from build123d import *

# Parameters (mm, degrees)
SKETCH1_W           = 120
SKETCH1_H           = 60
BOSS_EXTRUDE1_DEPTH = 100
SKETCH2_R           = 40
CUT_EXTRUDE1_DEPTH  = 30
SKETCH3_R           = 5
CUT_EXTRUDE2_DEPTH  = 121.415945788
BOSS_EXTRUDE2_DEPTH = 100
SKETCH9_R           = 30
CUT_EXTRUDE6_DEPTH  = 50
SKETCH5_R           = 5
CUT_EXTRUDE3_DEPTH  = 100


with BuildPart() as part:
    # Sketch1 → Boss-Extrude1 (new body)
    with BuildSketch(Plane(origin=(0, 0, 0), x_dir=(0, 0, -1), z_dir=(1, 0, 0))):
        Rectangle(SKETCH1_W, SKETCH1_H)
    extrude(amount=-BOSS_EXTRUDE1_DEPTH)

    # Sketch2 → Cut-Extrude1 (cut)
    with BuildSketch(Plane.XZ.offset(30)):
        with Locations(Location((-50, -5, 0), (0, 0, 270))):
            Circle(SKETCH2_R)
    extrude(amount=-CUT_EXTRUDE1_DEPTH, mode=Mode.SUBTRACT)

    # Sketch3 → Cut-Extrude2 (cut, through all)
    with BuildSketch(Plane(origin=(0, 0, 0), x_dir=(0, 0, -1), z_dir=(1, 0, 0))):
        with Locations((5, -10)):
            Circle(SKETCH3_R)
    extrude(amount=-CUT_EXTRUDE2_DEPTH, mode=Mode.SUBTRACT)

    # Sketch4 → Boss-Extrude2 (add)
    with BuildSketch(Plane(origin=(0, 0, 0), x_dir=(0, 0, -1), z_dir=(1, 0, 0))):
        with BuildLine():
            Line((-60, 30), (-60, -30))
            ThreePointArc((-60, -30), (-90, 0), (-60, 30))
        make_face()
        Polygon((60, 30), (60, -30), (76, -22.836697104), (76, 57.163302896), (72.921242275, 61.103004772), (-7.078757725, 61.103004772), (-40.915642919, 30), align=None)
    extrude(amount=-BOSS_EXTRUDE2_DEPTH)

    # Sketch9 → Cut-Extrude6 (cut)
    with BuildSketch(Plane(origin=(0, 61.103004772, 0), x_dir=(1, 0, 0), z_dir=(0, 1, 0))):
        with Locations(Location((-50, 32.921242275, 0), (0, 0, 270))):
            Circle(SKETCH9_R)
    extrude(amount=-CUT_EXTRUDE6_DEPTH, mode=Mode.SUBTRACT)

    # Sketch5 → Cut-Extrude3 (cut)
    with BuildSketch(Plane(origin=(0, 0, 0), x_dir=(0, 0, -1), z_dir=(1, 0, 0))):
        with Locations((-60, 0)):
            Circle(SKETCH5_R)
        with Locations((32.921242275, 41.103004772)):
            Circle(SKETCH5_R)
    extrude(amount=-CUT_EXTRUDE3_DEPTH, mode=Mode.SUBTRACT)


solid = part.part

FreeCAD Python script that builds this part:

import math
import FreeCAD as App
import Part
import Sketcher

doc = App.newDocument("Part")
body = doc.addObject("PartDesign::Body", "Body")

sketch1 = body.newObject("Sketcher::SketchObject", "Sketch")
sketch1.AttachmentSupport = (doc.getObject("YZ_Plane"), [""])
sketch1.MapMode = "FlatFace"
sketch1.addGeometry(Part.LineSegment(App.Vector(30, 60, 0), App.Vector(-30, 60, 0)), False)
sketch1.addGeometry(Part.LineSegment(App.Vector(-30, 60, 0), App.Vector(-30, -60, 0)), False)
sketch1.addGeometry(Part.LineSegment(App.Vector(-30, -60, 0), App.Vector(30, -60, 0)), False)
sketch1.addGeometry(Part.LineSegment(App.Vector(30, -60, 0), App.Vector(30, 60, 0)), False)
sketch1.addConstraint(Sketcher.Constraint("Coincident", 0, 2, 1, 1))
sketch1.addConstraint(Sketcher.Constraint("Coincident", 1, 2, 2, 1))
sketch1.addConstraint(Sketcher.Constraint("Coincident", 2, 2, 3, 1))
sketch1.addConstraint(Sketcher.Constraint("Coincident", 3, 2, 0, 1))
sketch1.addConstraint(Sketcher.Constraint("Horizontal", 0))
sketch1.addConstraint(Sketcher.Constraint("Vertical", 1))
sketch1.addConstraint(Sketcher.Constraint("Horizontal", 2))
sketch1.addConstraint(Sketcher.Constraint("Vertical", 3))
sketch1.addConstraint(Sketcher.Constraint("Symmetric", 0, 2, 2, 2, -1, 1))
sketch1.addConstraint(Sketcher.Constraint("DistanceX", 0, 2, 0, 1, 60.0))
sketch1.addConstraint(Sketcher.Constraint("DistanceY", 1, 2, 1, 1, 120.0))
pad1 = body.newObject("PartDesign::Pad", "Pad")
pad1.Profile = sketch1
pad1.Length = 100
pad1.Reversed = True

sketch2 = body.newObject("Sketcher::SketchObject", "Sketch001")
sketch2.AttachmentSupport = (doc.getObject("XZ_Plane"), [""])
sketch2.MapMode = "FlatFace"
sketch2.AttachmentOffset = App.Placement(App.Vector(0, 0, 30), App.Rotation())
sketch2.addGeometry(Part.Circle(App.Vector(-50, -5, 0), App.Vector(0, 0, 1), 40), False)
sketch2.addConstraint(Sketcher.Constraint("Diameter", 0, 80.0))
sketch2.addConstraint(Sketcher.Constraint("DistanceX", 0, 3, -1, 1, 50.0))
sketch2.addConstraint(Sketcher.Constraint("DistanceY", 0, 3, -1, 1, 5.0))
pocket1 = body.newObject("PartDesign::Pocket", "Pocket")
pocket1.Profile = sketch2
pocket1.Length = 30

sketch3 = body.newObject("Sketcher::SketchObject", "Sketch002")
sketch3.AttachmentSupport = (doc.getObject("YZ_Plane"), [""])
sketch3.MapMode = "FlatFace"
sketch3.addGeometry(Part.Circle(App.Vector(-10, -5, 0), App.Vector(0, 0, 1), 5), False)
sketch3.addConstraint(Sketcher.Constraint("Diameter", 0, 10.0))
sketch3.addConstraint(Sketcher.Constraint("DistanceX", 0, 3, -1, 1, 10.0))
sketch3.addConstraint(Sketcher.Constraint("DistanceY", 0, 3, -1, 1, 5.0))
pocket2 = body.newObject("PartDesign::Pocket", "Pocket001")
pocket2.Profile = sketch3
pocket2.Type = "ThroughAll"

sketch4 = body.newObject("Sketcher::SketchObject", "Sketch003")
sketch4.AttachmentSupport = (doc.getObject("YZ_Plane"), [""])
sketch4.MapMode = "FlatFace"
sketch4.addGeometry(Part.LineSegment(App.Vector(-30, 60, 0), App.Vector(30, 60, 0)), False)
sketch4.addGeometry(Part.ArcOfCircle(Part.Circle(App.Vector(0, 60, 0), App.Vector(0, 0, 1), 30), math.radians(0), math.radians(180)), False)
sketch4.addGeometry(Part.LineSegment(App.Vector(30, -60, 0), App.Vector(-30, -60, 0)), False)
sketch4.addGeometry(Part.LineSegment(App.Vector(-30, -60, 0), App.Vector(-23, -76, 0)), False)
sketch4.addGeometry(Part.LineSegment(App.Vector(-23, -76, 0), App.Vector(57, -76, 0)), False)
sketch4.addGeometry(Part.LineSegment(App.Vector(57, -76, 0), App.Vector(61, -73, 0)), False)
sketch4.addGeometry(Part.LineSegment(App.Vector(61, -73, 0), App.Vector(61, 7, 0)), False)
sketch4.addGeometry(Part.LineSegment(App.Vector(61, 7, 0), App.Vector(30, 41, 0)), False)
sketch4.addGeometry(Part.LineSegment(App.Vector(30, 41, 0), App.Vector(30, -60, 0)), False)
sketch4.addConstraint(Sketcher.Constraint("Coincident", 0, 1, 1, 2))
sketch4.addConstraint(Sketcher.Constraint("Coincident", 1, 1, 0, 2))
sketch4.addConstraint(Sketcher.Constraint("Coincident", 2, 2, 3, 1))
sketch4.addConstraint(Sketcher.Constraint("Coincident", 3, 2, 4, 1))
sketch4.addConstraint(Sketcher.Constraint("Coincident", 4, 2, 5, 1))
sketch4.addConstraint(Sketcher.Constraint("Coincident", 5, 2, 6, 1))
sketch4.addConstraint(Sketcher.Constraint("Coincident", 6, 2, 7, 1))
sketch4.addConstraint(Sketcher.Constraint("Coincident", 7, 2, 8, 1))
sketch4.addConstraint(Sketcher.Constraint("Coincident", 8, 2, 2, 1))
sketch4.addConstraint(Sketcher.Constraint("Horizontal", 0))
sketch4.addConstraint(Sketcher.Constraint("Horizontal", 2))
sketch4.addConstraint(Sketcher.Constraint("Horizontal", 4))
sketch4.addConstraint(Sketcher.Constraint("Vertical", 6))
sketch4.addConstraint(Sketcher.Constraint("Vertical", 8))
sketch4.addConstraint(Sketcher.Constraint("Symmetric", 1, 1, 2, 2, -1, 1))
sketch4.addConstraint(Sketcher.Constraint("PointOnObject", 1, 3, -2))
sketch4.addConstraint(Sketcher.Constraint("Horizontal", 1, 3, 0, 1))
sketch4.addConstraint(Sketcher.Constraint("Vertical", 1, 1, 7, 2))
sketch4.addConstraint(Sketcher.Constraint("Equal", 4, 6))
sketch4.addConstraint(Sketcher.Constraint("Radius", 1, 30.0))
sketch4.addConstraint(Sketcher.Constraint("DistanceX", 4, 1, 4, 2, 80.0))
sketch4.addConstraint(Sketcher.Constraint("Distance", 5, 5.0))
sketch4.addConstraint(Sketcher.Constraint("DistanceY", -1, 1, 1, 3, 60.0))
sketch4.addConstraint(Sketcher.Constraint("DistanceY", 3, 2, -1, 1, 76.0))
sketch4.addConstraint(Sketcher.Constraint("DistanceX", 4, 2, 5, 2, 3.939702))
sketch4.addConstraint(Sketcher.Constraint("Distance", 7, 45.96011))
sketch4.addConstraint(Sketcher.Constraint("DistanceY", 8, 2, 8, 1, 100.915643))
pad2 = body.newObject("PartDesign::Pad", "Pad001")
pad2.Profile = sketch4
pad2.Length = 100
pad2.Reversed = True

sketch5 = body.newObject("Sketcher::SketchObject", "Sketch004")
sketch5.AttachmentSupport = (doc.getObject("XZ_Plane"), [""])
sketch5.MapMode = "FlatFace"
sketch5.AttachmentOffset = App.Placement(App.Vector(0, 0, -61.103005), App.Rotation())
sketch5.addGeometry(Part.Circle(App.Vector(-50, -33, 0), App.Vector(0, 0, 1), 30), False)
sketch5.addConstraint(Sketcher.Constraint("Diameter", 0, 60.0))
sketch5.addConstraint(Sketcher.Constraint("DistanceX", 0, 3, -1, 1, 50.0))
sketch5.addConstraint(Sketcher.Constraint("DistanceY", 0, 3, -1, 1, 32.921242))
pocket3 = body.newObject("PartDesign::Pocket", "Pocket002")
pocket3.Profile = sketch5
pocket3.Length = 50
pocket3.Reversed = True

sketch6 = body.newObject("Sketcher::SketchObject", "Sketch005")
sketch6.AttachmentSupport = (doc.getObject("YZ_Plane"), [""])
sketch6.MapMode = "FlatFace"
sketch6.addGeometry(Part.Circle(App.Vector(0, 60, 0), App.Vector(0, 0, 1), 5), False)
sketch6.addGeometry(Part.Circle(App.Vector(41, -33, 0), App.Vector(0, 0, 1), 5), False)
sketch6.addConstraint(Sketcher.Constraint("Equal", 0, 1))
sketch6.addConstraint(Sketcher.Constraint("PointOnObject", 0, 3, -2))
sketch6.addConstraint(Sketcher.Constraint("Diameter", 0, 10.0))
sketch6.addConstraint(Sketcher.Constraint("DistanceY", -1, 1, 0, 3, 60.0))
sketch6.addConstraint(Sketcher.Constraint("DistanceX", -1, 1, 1, 3, 41.103005))
sketch6.addConstraint(Sketcher.Constraint("DistanceY", 1, 3, -1, 1, 32.921242))
pocket4 = body.newObject("PartDesign::Pocket", "Pocket003")
pocket4.Profile = sketch6
pocket4.Length = 100

doc.recompute()
